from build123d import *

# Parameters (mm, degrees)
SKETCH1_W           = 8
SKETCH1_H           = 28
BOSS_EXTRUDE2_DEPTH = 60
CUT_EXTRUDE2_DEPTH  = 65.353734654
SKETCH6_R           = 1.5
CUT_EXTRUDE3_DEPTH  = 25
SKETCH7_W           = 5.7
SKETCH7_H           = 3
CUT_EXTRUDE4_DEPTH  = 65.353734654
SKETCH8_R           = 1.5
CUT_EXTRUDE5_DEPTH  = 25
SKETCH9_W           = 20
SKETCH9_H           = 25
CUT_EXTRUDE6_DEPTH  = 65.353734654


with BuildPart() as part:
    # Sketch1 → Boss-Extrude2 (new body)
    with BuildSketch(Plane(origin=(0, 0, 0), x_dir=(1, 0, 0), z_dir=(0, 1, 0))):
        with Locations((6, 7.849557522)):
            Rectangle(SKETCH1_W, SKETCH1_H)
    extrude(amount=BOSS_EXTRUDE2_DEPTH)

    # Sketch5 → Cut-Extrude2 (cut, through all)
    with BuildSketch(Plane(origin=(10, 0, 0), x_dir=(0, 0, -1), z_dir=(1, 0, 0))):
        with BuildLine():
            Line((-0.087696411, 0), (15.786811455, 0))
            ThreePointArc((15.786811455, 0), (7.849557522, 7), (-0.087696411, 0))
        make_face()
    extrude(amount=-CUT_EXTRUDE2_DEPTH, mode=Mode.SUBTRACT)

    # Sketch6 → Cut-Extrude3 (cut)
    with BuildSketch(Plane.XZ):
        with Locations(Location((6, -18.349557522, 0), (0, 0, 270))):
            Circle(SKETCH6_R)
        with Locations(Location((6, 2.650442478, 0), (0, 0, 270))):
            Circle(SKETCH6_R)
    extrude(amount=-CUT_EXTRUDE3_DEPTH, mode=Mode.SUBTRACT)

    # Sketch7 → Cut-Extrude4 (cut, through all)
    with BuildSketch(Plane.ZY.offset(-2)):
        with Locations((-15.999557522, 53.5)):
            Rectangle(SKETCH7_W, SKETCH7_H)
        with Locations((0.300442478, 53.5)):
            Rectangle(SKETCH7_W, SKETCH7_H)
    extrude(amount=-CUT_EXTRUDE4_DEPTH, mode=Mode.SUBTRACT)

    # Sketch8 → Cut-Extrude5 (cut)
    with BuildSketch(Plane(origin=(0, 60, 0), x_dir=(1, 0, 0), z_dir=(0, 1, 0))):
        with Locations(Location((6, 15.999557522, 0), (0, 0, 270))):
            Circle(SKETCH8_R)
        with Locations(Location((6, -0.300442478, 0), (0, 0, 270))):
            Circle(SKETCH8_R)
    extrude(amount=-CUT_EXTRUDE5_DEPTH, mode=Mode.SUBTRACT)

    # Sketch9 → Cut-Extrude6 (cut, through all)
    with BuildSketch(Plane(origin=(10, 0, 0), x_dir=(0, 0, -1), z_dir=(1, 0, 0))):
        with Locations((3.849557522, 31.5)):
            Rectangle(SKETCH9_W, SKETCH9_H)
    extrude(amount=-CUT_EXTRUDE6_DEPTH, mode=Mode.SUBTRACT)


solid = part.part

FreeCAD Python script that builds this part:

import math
import FreeCAD as App
import Part
import Sketcher
from FreeCAD import Vector

doc = App.newDocument("Part")
body = doc.addObject("PartDesign::Body", "Body")

# Sketch on XZ plane
sketch1 = body.newObject("Sketcher::SketchObject", "Sketch")
sketch1.AttachmentSupport = (doc.getObject("XZ_Plane"), [""])
sketch1.MapMode = "FlatFace"
sketch1.addGeometry([
    Part.LineSegment(Vector(2, -22, 0), Vector(2, 6, 0)),
    Part.LineSegment(Vector(2, 6, 0), Vector(10, 6, 0)),
    Part.LineSegment(Vector(10, 6, 0), Vector(10, -22, 0)),
    Part.LineSegment(Vector(10, -22, 0), Vector(2, -22, 0)),
], False)
sketch1.addConstraint([
    Sketcher.Constraint("Coincident", 0, 2, 1, 1),
    Sketcher.Constraint("Coincident", 1, 2, 2, 1),
    Sketcher.Constraint("Coincident", 2, 2, 3, 1),
    Sketcher.Constraint("Coincident", 3, 2, 0, 1),
    Sketcher.Constraint("Vertical", 0),
    Sketcher.Constraint("Horizontal", 1),
    Sketcher.Constraint("Vertical", 2),
    Sketcher.Constraint("Horizontal", 3),
    Sketcher.Constraint("DistanceX", 1, 1, 1, 2, 8.0),
    Sketcher.Constraint("DistanceY", 0, 1, 0, 2, 28.0),
    Sketcher.Constraint("DistanceX", -1, 1, 0, 2, 2.0),
    Sketcher.Constraint("DistanceY", -1, 1, 0, 2, 6.150442),
])
pad1 = body.newObject("PartDesign::Pad", "Pad")
pad1.Profile = sketch1
pad1.Length = 60
pad1.Reversed = True

# Sketch on YZ plane
sketch2 = body.newObject("Sketcher::SketchObject", "Sketch001")
sketch2.AttachmentSupport = (doc.getObject("YZ_Plane"), [""])
sketch2.MapMode = "FlatFace"
sketch2.AttachmentOffset = App.Placement(Vector(0, 0, 10), App.Rotation())
sketch2.addGeometry([
    Part.LineSegment(Vector(0, 0, 0), Vector(0, -16, 0)),
    Part.ArcOfCircle(Part.Circle(Vector(-1, -8, 0), Vector(0, 0, 1), 8), math.radians(-83), math.radians(83)),
], False)
sketch2.addConstraint([
    Sketcher.Constraint("Coincident", 0, 1, 1, 2),
    Sketcher.Constraint("Coincident", 1, 1, 0, 2),
    Sketcher.Constraint("Vertical", 0),
    Sketcher.Constraint("PointOnObject", 0, 1, -2),
    Sketcher.Constraint("Radius", 1, 8.0),
    Sketcher.Constraint("DistanceX", 1, 3, -1, 1, 1.0),
    Sketcher.Constraint("DistanceY", 1, 1, -1, 1, 15.786811),
])
pocket1 = body.newObject("PartDesign::Pocket", "Pocket")
pocket1.Profile = sketch2
pocket1.Type = "ThroughAll"

# Sketch on XZ plane
sketch3 = body.newObject("Sketcher::SketchObject", "Sketch002")
sketch3.AttachmentSupport = (doc.getObject("XZ_Plane"), [""])
sketch3.MapMode = "FlatFace"
sketch3.addGeometry([
    Part.Circle(Vector(6, -18.3, 0), Vector(0, 0, 1), 1.5),
    Part.Circle(Vector(6, 2.7, 0), Vector(0, 0, 1), 1.5),
], False)
sketch3.addConstraint([
    Sketcher.Constraint("Equal", 0, 1),
    Sketcher.Constraint("Vertical", 0, 3, 1, 3),
    Sketcher.Constraint("Diameter", 0, 3.0),
    Sketcher.Constraint("DistanceX", -1, 1, 0, 3, 6.0),
    Sketcher.Constraint("DistanceY", 0, 3, 1, 3, 21.0),
    Sketcher.Constraint("DistanceY", 0, 3, -1, 1, 18.349558),
])
pocket2 = body.newObject("PartDesign::Pocket", "Pocket001")
pocket2.Profile = sketch3
pocket2.Length = 25

# Sketch on YZ plane
sketch4 = body.newObject("Sketcher::SketchObject", "Sketch003")
sketch4.AttachmentSupport = (doc.getObject("YZ_Plane"), [""])
sketch4.MapMode = "FlatFace"
sketch4.AttachmentOffset = App.Placement(Vector(0, 0, 2), App.Rotation())
sketch4.addGeometry([
    Part.LineSegment(Vector(55, -18.8, 0), Vector(52, -18.8, 0)),  # 0
    Part.LineSegment(Vector(52, -18.8, 0), Vector(52, -13.1, 0)),  # 1
    Part.LineSegment(Vector(52, -13.1, 0), Vector(55, -13.1, 0)),  # 2
    Part.LineSegment(Vector(55, -13.1, 0), Vector(55, -18.8, 0)),  # 3
    Part.LineSegment(Vector(55, -2.5, 0), Vector(52, -2.5, 0)),  # 4
    Part.LineSegment(Vector(52, -2.5, 0), Vector(52, 3.2, 0)),  # 5
    Part.LineSegment(Vector(52, 3.2, 0), Vector(55, 3.2, 0)),  # 6
    Part.LineSegment(Vector(55, 3.2, 0), Vector(55, -2.5, 0)),  # 7
], False)
sketch4.addConstraint([
    Sketcher.Constraint("Coincident", 0, 2, 1, 1),
    Sketcher.Constraint("Coincident", 1, 2, 2, 1),
    Sketcher.Constraint("Coincident", 2, 2, 3, 1),
    Sketcher.Constraint("Coincident", 3, 2, 0, 1),
    Sketcher.Constraint("Coincident", 4, 2, 5, 1),
    Sketcher.Constraint("Coincident", 5, 2, 6, 1),
    Sketcher.Constraint("Coincident", 6, 2, 7, 1),
    Sketcher.Constraint("Coincident", 7, 2, 4, 1),
    Sketcher.Constraint("Horizontal", 0),
    Sketcher.Constraint("Vertical", 1),
    Sketcher.Constraint("Horizontal", 2),
    Sketcher.Constraint("Vertical", 3),
    Sketcher.Constraint("Horizontal", 4),
    Sketcher.Constraint("Vertical", 5),
    Sketcher.Constraint("Horizontal", 6),
    Sketcher.Constraint("Vertical", 7),
    Sketcher.Constraint("Vertical", 1, 2, 4, 2),
    Sketcher.Constraint("Vertical", 3, 2, 6, 2),
    Sketcher.Constraint("Equal", 3, 5),
    Sketcher.Constraint("DistanceX", 0, 2, 0, 1, 3.0),
    Sketcher.Constraint("DistanceY", 1, 1, 1, 2, 5.7),
    Sketcher.Constraint("DistanceX", -1, 1, 0, 2, 52.0),
    Sketcher.Constraint("DistanceY", 0, 2, 5, 2, 22.0),
    Sketcher.Constraint("DistanceY", 0, 2, -1, 1, 18.849558),
])
pocket3 = body.newObject("PartDesign::Pocket", "Pocket002")
pocket3.Profile = sketch4
pocket3.Type = "ThroughAll"
pocket3.Reversed = True

# Sketch on XZ plane
sketch5 = body.newObject("Sketcher::SketchObject", "Sketch004")
sketch5.AttachmentSupport = (doc.getObject("XZ_Plane"), [""])
sketch5.MapMode = "FlatFace"
sketch5.AttachmentOffset = App.Placement(Vector(0, 0, -60), App.Rotation())
sketch5.addGeometry([
    Part.Circle(Vector(6, -16, 0), Vector(0, 0, 1), 1.5),
    Part.Circle(Vector(6, 0.3, 0), Vector(0, 0, 1), 1.5),
], False)
sketch5.addConstraint([
    Sketcher.Constraint("Equal", 0, 1),
    Sketcher.Constraint("Vertical", 0, 3, 1, 3),
    Sketcher.Constraint("Diameter", 0, 3.0),
    Sketcher.Constraint("DistanceX", -1, 1, 0, 3, 6.0),
    Sketcher.Constraint("DistanceY", 0, 3, 1, 3, 16.3),
    Sketcher.Constraint("DistanceY", 0, 3, -1, 1, 15.999558),
])
pocket4 = body.newObject("PartDesign::Pocket", "Pocket003")
pocket4.Profile = sketch5
pocket4.Length = 25
pocket4.Reversed = True

# Sketch on YZ plane
sketch6 = body.newObject("Sketcher::SketchObject", "Sketch005")
sketch6.AttachmentSupport = (doc.getObject("YZ_Plane"), [""])
sketch6.MapMode = "FlatFace"
sketch6.AttachmentOffset = App.Placement(Vector(0, 0, 10), App.Rotation())
sketch6.addGeometry([
    Part.LineSegment(Vector(44, 6, 0), Vector(19, 6, 0)),
    Part.LineSegment(Vector(19, 6, 0), Vector(19, -14, 0)),
    Part.LineSegment(Vector(19, -14, 0), Vector(44, -14, 0)),
    Part.LineSegment(Vector(44, -14, 0), Vector(44, 6, 0)),
], False)
sketch6.addConstraint([
    Sketcher.Constraint("Coincident", 0, 2, 1, 1),
    Sketcher.Constraint("Coincident", 1, 2, 2, 1),
    Sketcher.Constraint("Coincident", 2, 2, 3, 1),
    Sketcher.Constraint("Coincident", 3, 2, 0, 1),
    Sketcher.Constraint("Horizontal", 0),
    Sketcher.Constraint("Vertical", 1),
    Sketcher.Constraint("Horizontal", 2),
    Sketcher.Constraint("Vertical", 3),
    Sketcher.Constraint("DistanceX", 0, 2, 0, 1, 25.0),
    Sketcher.Constraint("DistanceY", 1, 2, 1, 1, 20.0),
    Sketcher.Constraint("DistanceX", -1, 1, 0, 2, 19.0),
    Sketcher.Constraint("DistanceY", -1, 1, 0, 2, 6.150442),
])
pocket5 = body.newObject("PartDesign::Pocket", "Pocket004")
pocket5.Profile = sketch6
pocket5.Type = "ThroughAll"

doc.recompute()
